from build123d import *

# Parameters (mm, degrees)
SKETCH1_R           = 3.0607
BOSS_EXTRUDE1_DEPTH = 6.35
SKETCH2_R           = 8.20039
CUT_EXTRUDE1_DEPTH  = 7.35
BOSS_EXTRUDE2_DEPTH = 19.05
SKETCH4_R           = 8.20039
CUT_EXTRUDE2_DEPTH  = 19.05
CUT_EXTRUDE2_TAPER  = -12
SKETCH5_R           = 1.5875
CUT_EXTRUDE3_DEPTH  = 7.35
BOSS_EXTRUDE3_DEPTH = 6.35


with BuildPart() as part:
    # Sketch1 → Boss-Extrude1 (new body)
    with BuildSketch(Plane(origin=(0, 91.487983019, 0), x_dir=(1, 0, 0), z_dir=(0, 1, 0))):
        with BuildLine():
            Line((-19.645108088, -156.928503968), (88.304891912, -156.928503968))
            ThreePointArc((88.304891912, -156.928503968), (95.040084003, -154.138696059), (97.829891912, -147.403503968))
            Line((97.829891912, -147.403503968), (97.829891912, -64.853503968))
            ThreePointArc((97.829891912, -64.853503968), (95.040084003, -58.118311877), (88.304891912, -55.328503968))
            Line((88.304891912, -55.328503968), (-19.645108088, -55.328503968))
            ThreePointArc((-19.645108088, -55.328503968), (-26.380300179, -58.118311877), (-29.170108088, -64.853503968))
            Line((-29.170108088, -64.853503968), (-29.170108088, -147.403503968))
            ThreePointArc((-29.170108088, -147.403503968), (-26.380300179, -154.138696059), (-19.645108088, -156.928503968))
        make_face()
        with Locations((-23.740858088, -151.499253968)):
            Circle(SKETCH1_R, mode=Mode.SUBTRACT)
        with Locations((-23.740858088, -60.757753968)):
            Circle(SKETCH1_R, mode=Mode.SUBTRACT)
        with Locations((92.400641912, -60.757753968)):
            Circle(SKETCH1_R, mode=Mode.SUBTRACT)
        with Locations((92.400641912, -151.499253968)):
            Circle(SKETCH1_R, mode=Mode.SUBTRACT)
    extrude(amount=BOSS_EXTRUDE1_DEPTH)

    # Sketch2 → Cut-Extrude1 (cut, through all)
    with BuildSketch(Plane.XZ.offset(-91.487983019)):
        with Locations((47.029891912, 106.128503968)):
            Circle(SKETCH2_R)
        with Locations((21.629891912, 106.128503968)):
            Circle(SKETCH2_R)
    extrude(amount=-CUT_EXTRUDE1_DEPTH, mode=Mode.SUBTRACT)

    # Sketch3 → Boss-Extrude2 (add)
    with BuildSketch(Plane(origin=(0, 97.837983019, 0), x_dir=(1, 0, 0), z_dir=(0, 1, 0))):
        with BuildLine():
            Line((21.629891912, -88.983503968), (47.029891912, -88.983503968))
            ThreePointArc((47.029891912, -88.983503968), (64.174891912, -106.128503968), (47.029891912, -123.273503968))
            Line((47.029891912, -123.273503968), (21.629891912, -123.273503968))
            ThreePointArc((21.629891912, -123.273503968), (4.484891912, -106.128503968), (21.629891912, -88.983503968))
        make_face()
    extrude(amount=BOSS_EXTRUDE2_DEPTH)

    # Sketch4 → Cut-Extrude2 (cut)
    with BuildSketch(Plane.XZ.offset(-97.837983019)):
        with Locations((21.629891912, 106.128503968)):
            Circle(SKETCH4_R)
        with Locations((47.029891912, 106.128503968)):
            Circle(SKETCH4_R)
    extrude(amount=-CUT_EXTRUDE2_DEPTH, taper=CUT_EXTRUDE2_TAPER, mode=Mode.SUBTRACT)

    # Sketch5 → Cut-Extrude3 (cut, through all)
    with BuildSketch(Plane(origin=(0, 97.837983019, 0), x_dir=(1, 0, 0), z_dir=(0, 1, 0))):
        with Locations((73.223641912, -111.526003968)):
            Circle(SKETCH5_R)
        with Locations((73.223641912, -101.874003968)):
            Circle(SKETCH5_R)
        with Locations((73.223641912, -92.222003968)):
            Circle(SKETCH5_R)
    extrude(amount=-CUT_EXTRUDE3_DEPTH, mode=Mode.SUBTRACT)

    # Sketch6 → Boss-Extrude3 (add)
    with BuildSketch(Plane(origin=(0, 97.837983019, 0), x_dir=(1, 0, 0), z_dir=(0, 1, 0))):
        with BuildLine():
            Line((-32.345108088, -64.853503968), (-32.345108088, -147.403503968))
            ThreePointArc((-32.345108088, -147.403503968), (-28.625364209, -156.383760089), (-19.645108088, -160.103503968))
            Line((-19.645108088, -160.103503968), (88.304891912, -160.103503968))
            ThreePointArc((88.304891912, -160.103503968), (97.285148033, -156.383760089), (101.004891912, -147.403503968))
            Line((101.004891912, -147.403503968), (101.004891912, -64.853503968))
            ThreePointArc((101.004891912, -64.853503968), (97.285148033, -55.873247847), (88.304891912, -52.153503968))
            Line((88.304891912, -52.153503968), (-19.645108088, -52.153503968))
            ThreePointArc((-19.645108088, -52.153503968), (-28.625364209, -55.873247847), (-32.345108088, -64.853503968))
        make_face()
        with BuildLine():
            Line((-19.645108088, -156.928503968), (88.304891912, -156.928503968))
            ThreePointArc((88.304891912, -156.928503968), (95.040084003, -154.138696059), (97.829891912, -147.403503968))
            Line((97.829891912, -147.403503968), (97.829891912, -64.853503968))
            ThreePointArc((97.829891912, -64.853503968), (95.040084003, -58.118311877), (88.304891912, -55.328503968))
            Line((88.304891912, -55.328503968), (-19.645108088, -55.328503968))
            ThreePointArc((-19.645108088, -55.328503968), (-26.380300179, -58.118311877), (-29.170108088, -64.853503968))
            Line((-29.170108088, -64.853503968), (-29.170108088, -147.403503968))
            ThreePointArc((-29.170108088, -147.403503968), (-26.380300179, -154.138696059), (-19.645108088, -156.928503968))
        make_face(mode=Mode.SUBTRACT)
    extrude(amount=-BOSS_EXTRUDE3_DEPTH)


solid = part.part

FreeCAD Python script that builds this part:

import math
import FreeCAD as App
import Part
import Sketcher

V = App.Vector
Q = App.Units.Quantity

doc = App.newDocument("Part")
body = doc.addObject("PartDesign::Body", "Body")

sketch1 = body.newObject("Sketcher::SketchObject", "Sketch")
sketch1.AttachmentSupport = (doc.getObject("XZ_Plane"), [""])
sketch1.MapMode = "FlatFace"
sketch1.AttachmentOffset = App.Placement(V(0, 0, -91.487983), App.Rotation())
sketch1.addGeometry(Part.LineSegment(V(-19.6, 156.9, 0), V(88.3, 156.9, 0)), False)
sketch1.addGeometry(Part.ArcOfCircle(Part.Circle(V(88.3, 147.4, 0), V(0, 0, 1), 9.5), math.radians(0), math.radians(90)), False)
sketch1.addGeometry(Part.LineSegment(V(97.8, 147.4, 0), V(97.8, 64.9, 0)), False)
sketch1.addGeometry(Part.ArcOfCircle(Part.Circle(V(88.3, 64.9, 0), V(0, 0, 1), 9.5), math.radians(-90), math.radians(0)), False)
sketch1.addGeometry(Part.LineSegment(V(88.3, 55.3, 0), V(-19.6, 55.3, 0)), False)
sketch1.addGeometry(Part.ArcOfCircle(Part.Circle(V(-19.6, 64.9, 0), V(0, 0, 1), 9.5), math.radians(180), math.radians(270)), False)
sketch1.addGeometry(Part.LineSegment(V(-29.2, 64.9, 0), V(-29.2, 147.4, 0)), False)
sketch1.addGeometry(Part.ArcOfCircle(Part.Circle(V(-19.6, 147.4, 0), V(0, 0, 1), 9.5), math.radians(90), math.radians(180)), False)
sketch1.addGeometry(Part.Circle(V(-23.7, 151.5, 0), V(0, 0, 1), 3.1), False)
sketch1.addGeometry(Part.Circle(V(92.4, 151.5, 0), V(0, 0, 1), 3.1), False)
sketch1.addGeometry(Part.Circle(V(-23.7, 60.8, 0), V(0, 0, 1), 3.1), False)
sketch1.addGeometry(Part.Circle(V(92.4, 60.8, 0), V(0, 0, 1), 3.1), False)
sketch1.addConstraint(Sketcher.Constraint("Tangent", 0, 2, 1, 2))
sketch1.addConstraint(Sketcher.Constraint("Tangent", 1, 1, 2, 1))
sketch1.addConstraint(Sketcher.Constraint("Tangent", 2, 2, 3, 2))
sketch1.addConstraint(Sketcher.Constraint("Tangent", 3, 1, 4, 1))
sketch1.addConstraint(Sketcher.Constraint("Tangent", 4, 2, 5, 2))
sketch1.addConstraint(Sketcher.Constraint("Tangent", 5, 1, 6, 1))
sketch1.addConstraint(Sketcher.Constraint("Tangent", 6, 2, 7, 2))
sketch1.addConstraint(Sketcher.Constraint("Tangent", 7, 1, 0, 1))
sketch1.addConstraint(Sketcher.Constraint("Horizontal", 0))
sketch1.addConstraint(Sketcher.Constraint("Vertical", 2))
sketch1.addConstraint(Sketcher.Constraint("Horizontal", 4))
sketch1.addConstraint(Sketcher.Constraint("Vertical", 6))
sketch1.addConstraint(Sketcher.Constraint("Equal", 1, 3))
sketch1.addConstraint(Sketcher.Constraint("Equal", 3, 5))
sketch1.addConstraint(Sketcher.Constraint("Equal", 5, 7))
sketch1.addConstraint(Sketcher.Constraint("Equal", 8, 9))
sketch1.addConstraint(Sketcher.Constraint("Equal", 9, 10))
sketch1.addConstraint(Sketcher.Constraint("Equal", 10, 11))
sketch1.addConstraint(Sketcher.Constraint("Horizontal", 8, 3, 9, 3))
sketch1.addConstraint(Sketcher.Constraint("Horizontal", 10, 3, 11, 3))
sketch1.addConstraint(Sketcher.Constraint("Vertical", 8, 3, 10, 3))
sketch1.addConstraint(Sketcher.Constraint("Vertical", 9, 3, 11, 3))
sketch1.addConstraint(Sketcher.Constraint("Diameter", 8, Q("0.241 in")))
sketch1.addConstraint(Sketcher.Constraint("Radius", 1, Q("0.375 in")))
sketch1.addConstraint(Sketcher.Constraint("DistanceX", 0, 1, 0, 2, Q("4.25 in")))
sketch1.addConstraint(Sketcher.Constraint("DistanceY", 2, 2, 2, 1, Q("3.25 in")))
sketch1.addConstraint(Sketcher.Constraint("DistanceX", 8, 3, 9, 3, Q("4.5725 in")))
sketch1.addConstraint(Sketcher.Constraint("DistanceY", 10, 3, 8, 3, Q("3.5725 in")))
sketch1.addConstraint(Sketcher.Constraint("DistanceX", -1, 1, 1, 3, 88.304892))
sketch1.addConstraint(Sketcher.Constraint("DistanceX", 8, 3, -1, 1, 23.740858))
sketch1.addConstraint(Sketcher.Constraint("DistanceY", 7, 3, 8, 3, 4.09575))
sketch1.addConstraint(Sketcher.Constraint("DistanceY", -1, 1, 1, 3, 147.403504))
pad1 = body.newObject("PartDesign::Pad", "Pad")
pad1.Profile = sketch1
pad1.Length = Q("0.25 in")
pad1.Reversed = True

sketch2 = body.newObject("Sketcher::SketchObject", "Sketch001")
sketch2.AttachmentSupport = (doc.getObject("XZ_Plane"), [""])
sketch2.MapMode = "FlatFace"
sketch2.AttachmentOffset = App.Placement(V(0, 0, -91.487983), App.Rotation())
sketch2.addGeometry(Part.Circle(V(47, 106, 0), V(0, 0, 1), 8), False)
sketch2.addGeometry(Part.Circle(V(22, 106, 0), V(0, 0, 1), 8), False)
sketch2.addConstraint(Sketcher.Constraint("Equal", 0, 1))
sketch2.addConstraint(Sketcher.Constraint("Horizontal", 0, 3, 1, 3))
sketch2.addConstraint(Sketcher.Constraint("DistanceX", 1, 3, 0, 3, Q("1 in")))
sketch2.addConstraint(Sketcher.Constraint("Diameter", 0, Q("0.6457 in")))
sketch2.addConstraint(Sketcher.Constraint("DistanceX", -1, 1, 0, 3, 47.029892))
sketch2.addConstraint(Sketcher.Constraint("DistanceY", -1, 1, 0, 3, 106.128504))
pocket1 = body.newObject("PartDesign::Pocket", "Pocket")
pocket1.Profile = sketch2
pocket1.Type = "ThroughAll"

sketch3 = body.newObject("Sketcher::SketchObject", "Sketch002")
sketch3.AttachmentSupport = (doc.getObject("XZ_Plane"), [""])
sketch3.MapMode = "FlatFace"
sketch3.AttachmentOffset = App.Placement(V(0, 0, -97.837983), App.Rotation())
sketch3.addGeometry(Part.LineSegment(V(47, 89, 0), V(22, 89, 0)), False)
sketch3.addGeometry(Part.ArcOfCircle(Part.Circle(V(22, 106, 0), V(0, 0, 1), 17), math.radians(90), math.radians(270)), False)
sketch3.addGeometry(Part.LineSegment(V(22, 123, 0), V(47, 123, 0)), False)
sketch3.addGeometry(Part.ArcOfCircle(Part.Circle(V(47, 106, 0), V(0, 0, 1), 17), math.radians(-90), math.radians(90)), False)
sketch3.addConstraint(Sketcher.Constraint("Tangent", 0, 2, 1, 2))
sketch3.addConstraint(Sketcher.Constraint("Tangent", 1, 1, 2, 1))
sketch3.addConstraint(Sketcher.Constraint("Tangent", 2, 2, 3, 2))
sketch3.addConstraint(Sketcher.Constraint("Tangent", 3, 1, 0, 1))
sketch3.addConstraint(Sketcher.Constraint("Horizontal", 0))
sketch3.addConstraint(Sketcher.Constraint("Horizontal", 2))
sketch3.addConstraint(Sketcher.Constraint("DistanceX", 0, 2, 0, 1, Q("1 in")))
sketch3.addConstraint(Sketcher.Constraint("Radius", 1, Q("0.675 in")))
sketch3.addConstraint(Sketcher.Constraint("DistanceX", -1, 1, 1, 3, 21.629892))
sketch3.addConstraint(Sketcher.Constraint("DistanceY", -1, 1, 1, 3, 106.128504))
pad2 = body.newObject("PartDesign::Pad", "Pad001")
pad2.Profile = sketch3
pad2.Length = Q("0.75 in")
pad2.Reversed = True

sketch4 = body.newObject("Sketcher::SketchObject", "Sketch003")
sketch4.AttachmentSupport = (doc.getObject("XZ_Plane"), [""])
sketch4.MapMode = "FlatFace"
sketch4.AttachmentOffset = App.Placement(V(0, 0, -97.837983), App.Rotation())
sketch4.addGeometry(Part.Circle(V(22, 106, 0), V(0, 0, 1), 8), False)
sketch4.addGeometry(Part.Circle(V(47, 106, 0), V(0, 0, 1), 8), False)
sketch4.addConstraint(Sketcher.Constraint("Equal", 0, 1))
sketch4.addConstraint(Sketcher.Constraint("Horizontal", 0, 3, 1, 3))
sketch4.addConstraint(Sketcher.Constraint("DistanceX", 0, 3, 1, 3, Q("1 in")))
sketch4.addConstraint(Sketcher.Constraint("Diameter", 0, Q("0.6457 in")))
sketch4.addConstraint(Sketcher.Constraint("DistanceX", -1, 1, 0, 3, 21.629892))
sketch4.addConstraint(Sketcher.Constraint("DistanceY", -1, 1, 0, 3, 106.128504))
pocket2 = body.newObject("PartDesign::Pocket", "Pocket001")
pocket2.Profile = sketch4
pocket2.Length = Q("0.75 in")
pocket2.TaperAngle = 12

sketch5 = body.newObject("Sketcher::SketchObject", "Sketch004")
sketch5.AttachmentSupport = (doc.getObject("XZ_Plane"), [""])
sketch5.MapMode = "FlatFace"
sketch5.AttachmentOffset = App.Placement(V(0, 0, -97.837983), App.Rotation())
sketch5.addGeometry(Part.Circle(V(73.2, 111.5, 0), V(0, 0, 1), 1.6), False)
sketch5.addGeometry(Part.Circle(V(73.2, 101.9, 0), V(0, 0, 1), 1.6), False)
sketch5.addGeometry(Part.Circle(V(73.2, 92.2, 0), V(0, 0, 1), 1.6), False)
sketch5.addConstraint(Sketcher.Constraint("Equal", 0, 1))
sketch5.addConstraint(Sketcher.Constraint("Equal", 1, 2))
sketch5.addConstraint(Sketcher.Constraint("Vertical", 0, 3, 1, 3))
sketch5.addConstraint(Sketcher.Constraint("Vertical", 1, 3, 2, 3))
sketch5.addConstraint(Sketcher.Constraint("Diameter", 0, Q("0.125 in")))
sketch5.addConstraint(Sketcher.Constraint("DistanceY", 1, 3, 0, 3, Q("0.38 in")))
sketch5.addConstraint(Sketcher.Constraint("DistanceY", 2, 3, 1, 3, Q("0.38 in")))
sketch5.addConstraint(Sketcher.Constraint("DistanceX", -1, 1, 0, 3, 73.223642))
sketch5.addConstraint(Sketcher.Constraint("DistanceY", -1, 1, 0, 3, 111.526004))
pocket3 = body.newObject("PartDesign::Pocket", "Pocket002")
pocket3.Profile = sketch5
pocket3.Type = "ThroughAll"
pocket3.Reversed = True

sketch6 = body.newObject("Sketcher::SketchObject", "Sketch005")
sketch6.AttachmentSupport = (doc.getObject("XZ_Plane"), [""])
sketch6.MapMode = "FlatFace"
sketch6.AttachmentOffset = App.Placement(V(0, 0, -97.837983), App.Rotation())
sketch6.addGeometry(Part.LineSegment(V(-32, 65, 0), V(-32, 147, 0)), False)
sketch6.addGeometry(Part.ArcOfCircle(Part.Circle(V(-20, 147, 0), V(0, 0, 1), 13), math.radians(90), math.radians(180)), False)
sketch6.addGeometry(Part.LineSegment(V(-20, 160, 0), V(88, 160, 0)), False)
sketch6.addGeometry(Part.ArcOfCircle(Part.Circle(V(88, 147, 0), V(0, 0, 1), 13), math.radians(0), math.radians(90)), False)
sketch6.addGeometry(Part.LineSegment(V(101, 147, 0), V(101, 65, 0)), False)
sketch6.addGeometry(Part.ArcOfCircle(Part.Circle(V(88, 65, 0), V(0, 0, 1), 13), math.radians(-90), math.radians(0)), False)
sketch6.addGeometry(Part.LineSegment(V(88, 52, 0), V(-20, 52, 0)), False)
sketch6.addGeometry(Part.ArcOfCircle(Part.Circle(V(-20, 65, 0), V(0, 0, 1), 13), math.radians(180), math.radians(270)), False)
sketch6.addGeometry(Part.LineSegment(V(88, 157, 0), V(-20, 157, 0)), False)
sketch6.addGeometry(Part.ArcOfCircle(Part.Circle(V(-20, 147, 0), V(0, 0, 1), 10), math.radians(90), math.radians(180)), False)
sketch6.addGeometry(Part.LineSegment(V(-29, 147, 0), V(-29, 65, 0)), False)
sketch6.addGeometry(Part.ArcOfCircle(Part.Circle(V(-20, 65, 0), V(0, 0, 1), 10), math.radians(180), math.radians(270)), False)
sketch6.addGeometry(Part.LineSegment(V(-20, 55, 0), V(88, 55, 0)), False)
sketch6.addGeometry(Part.ArcOfCircle(Part.Circle(V(88, 65, 0), V(0, 0, 1), 10), math.radians(-90), math.radians(0)), False)
sketch6.addGeometry(Part.LineSegment(V(98, 65, 0), V(98, 147, 0)), False)
sketch6.addGeometry(Part.ArcOfCircle(Part.Circle(V(88, 147, 0), V(0, 0, 1), 10), math.radians(0), math.radians(90)), False)
sketch6.addConstraint(Sketcher.Constraint("Tangent", 0, 2, 1, 2))
sketch6.addConstraint(Sketcher.Constraint("Tangent", 1, 1, 2, 1))
sketch6.addConstraint(Sketcher.Constraint("Tangent", 2, 2, 3, 2))
sketch6.addConstraint(Sketcher.Constraint("Tangent", 3, 1, 4, 1))
sketch6.addConstraint(Sketcher.Constraint("Tangent", 4, 2, 5, 2))
sketch6.addConstraint(Sketcher.Constraint("Tangent", 5, 1, 6, 1))
sketch6.addConstraint(Sketcher.Constraint("Tangent", 6, 2, 7, 2))
sketch6.addConstraint(Sketcher.Constraint("Tangent", 7, 1, 0, 1))
sketch6.addConstraint(Sketcher.Constraint("Tangent", 8, 2, 9, 1))
sketch6.addConstraint(Sketcher.Constraint("Tangent", 9, 2, 10, 1))
sketch6.addConstraint(Sketcher.Constraint("Tangent", 10, 2, 11, 1))
sketch6.addConstraint(Sketcher.Constraint("Tangent", 11, 2, 12, 1))
sketch6.addConstraint(Sketcher.Constraint("Tangent", 12, 2, 13, 1))
sketch6.addConstraint(Sketcher.Constraint("Tangent", 13, 2, 14, 1))
sketch6.addConstraint(Sketcher.Constraint("Tangent", 14, 2, 15, 1))
sketch6.addConstraint(Sketcher.Constraint("Tangent", 15, 2, 8, 1))
sketch6.addConstraint(Sketcher.Constraint("Vertical", 0))
sketch6.addConstraint(Sketcher.Constraint("Horizontal", 2))
sketch6.addConstraint(Sketcher.Constraint("Vertical", 4))
sketch6.addConstraint(Sketcher.Constraint("Horizontal", 6))
sketch6.addConstraint(Sketcher.Constraint("Horizontal", 8))
sketch6.addConstraint(Sketcher.Constraint("Vertical", 10))
sketch6.addConstraint(Sketcher.Constraint("Horizontal", 12))
sketch6.addConstraint(Sketcher.Constraint("Vertical", 14))
sketch6.addConstraint(Sketcher.Constraint("Coincident", 9, 3, 1, 3))
sketch6.addConstraint(Sketcher.Constraint("Coincident", 11, 3, 7, 3))
sketch6.addConstraint(Sketcher.Constraint("Coincident", 13, 3, 5, 3))
sketch6.addConstraint(Sketcher.Constraint("Equal", 1, 3))
sketch6.addConstraint(Sketcher.Constraint("Equal", 3, 5))
sketch6.addConstraint(Sketcher.Constraint("Equal", 5, 7))
sketch6.addConstraint(Sketcher.Constraint("Equal", 13, 15))
sketch6.addConstraint(Sketcher.Constraint("Radius", 1, Q("0.5 in")))
sketch6.addConstraint(Sketcher.Constraint("Radius", 9, Q("0.375 in")))
sketch6.addConstraint(Sketcher.Constraint("DistanceX", 2, 1, 2, 2, Q("4.25 in")))
sketch6.addConstraint(Sketcher.Constraint("DistanceY", 0, 1, 0, 2, Q("3.25 in")))
sketch6.addConstraint(Sketcher.Constraint("DistanceX", 1, 3, -1, 1, 19.645108))
sketch6.addConstraint(Sketcher.Constraint("DistanceY", -1, 1, 1, 3, 147.403504))
pad3 = body.newObject("PartDesign::Pad", "Pad002")
pad3.Profile = sketch6
pad3.Length = Q("0.25 in")

doc.recompute()
